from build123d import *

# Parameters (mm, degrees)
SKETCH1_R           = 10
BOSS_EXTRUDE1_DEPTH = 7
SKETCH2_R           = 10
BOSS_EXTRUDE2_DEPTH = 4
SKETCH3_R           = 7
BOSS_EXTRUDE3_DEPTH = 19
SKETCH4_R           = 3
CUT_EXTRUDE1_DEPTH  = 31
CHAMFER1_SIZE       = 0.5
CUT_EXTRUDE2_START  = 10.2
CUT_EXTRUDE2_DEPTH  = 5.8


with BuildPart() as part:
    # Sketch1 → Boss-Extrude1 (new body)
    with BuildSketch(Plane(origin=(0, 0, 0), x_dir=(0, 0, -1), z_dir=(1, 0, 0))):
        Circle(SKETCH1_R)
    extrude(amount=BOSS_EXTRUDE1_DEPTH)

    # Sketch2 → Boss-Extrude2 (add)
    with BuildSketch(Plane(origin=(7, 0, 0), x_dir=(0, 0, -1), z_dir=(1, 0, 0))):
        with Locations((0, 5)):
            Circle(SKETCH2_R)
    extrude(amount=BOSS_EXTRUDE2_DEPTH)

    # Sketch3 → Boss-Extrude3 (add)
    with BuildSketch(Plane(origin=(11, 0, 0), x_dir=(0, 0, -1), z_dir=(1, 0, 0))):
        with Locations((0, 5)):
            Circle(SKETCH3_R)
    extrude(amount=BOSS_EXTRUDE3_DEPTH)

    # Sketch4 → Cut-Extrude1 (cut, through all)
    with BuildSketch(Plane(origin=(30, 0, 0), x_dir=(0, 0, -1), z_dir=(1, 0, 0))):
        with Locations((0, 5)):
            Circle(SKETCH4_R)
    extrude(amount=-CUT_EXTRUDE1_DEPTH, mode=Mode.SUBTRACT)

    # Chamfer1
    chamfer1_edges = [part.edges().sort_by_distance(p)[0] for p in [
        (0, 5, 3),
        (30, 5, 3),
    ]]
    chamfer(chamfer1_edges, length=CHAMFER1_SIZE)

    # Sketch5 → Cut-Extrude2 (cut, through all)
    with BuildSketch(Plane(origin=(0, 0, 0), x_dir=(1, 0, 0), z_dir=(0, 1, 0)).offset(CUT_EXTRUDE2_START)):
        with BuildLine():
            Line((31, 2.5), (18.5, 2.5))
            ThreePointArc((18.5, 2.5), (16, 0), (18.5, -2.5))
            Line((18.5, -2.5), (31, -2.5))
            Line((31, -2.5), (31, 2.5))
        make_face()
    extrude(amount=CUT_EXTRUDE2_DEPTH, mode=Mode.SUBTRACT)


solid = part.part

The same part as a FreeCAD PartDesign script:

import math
import FreeCAD as App
import Part
import Sketcher
Q = App.Units.Quantity


def edges_at(feature, points):
    """Names of the edges that pass closest to the given points."""
    edges = feature.Shape.Edges
    near = lambda p: min(range(len(edges)), key=lambda i: edges[i].distToShape(Part.Vertex(*p))[0])
    return sorted({f"Edge{near(p) + 1}" for p in points})

doc = App.newDocument("Part")
params = doc.addObject("Spreadsheet::Sheet", "Params")
for row, (alias, value) in enumerate([
    ("sketch1_diameter", "20 mm"),
    ("pad1_length", "7 mm"),
    ("sketch2_diameter", "20 mm"),
    ("pad2_length", "4 mm"),
    ("sketch3_diameter", "14 mm"),
    ("pad3_length", "19 mm"),
    ("sketch4_diameter", "6 mm"),
    ("chamfer_size", "0.5 mm"),
    ("sketch5_radius", "2.5 mm"),
    ("sketch5_width", "12.5 mm"),
], start=1):
    params.set(f"A{row}", alias)
    params.set(f"B{row}", "=" + value)
    params.setAlias(f"B{row}", alias)

body = doc.addObject("PartDesign::Body", "Body")

# Sketch on YZ plane
sketch1 = body.newObject("Sketcher::SketchObject", "Sketch")
sketch1.AttachmentSupport = (doc.getObject("YZ_Plane"), [""])
sketch1.MapMode = "FlatFace"
sketch1.addGeometry(Part.Circle(App.Vector(0, 0, 0), App.Vector(0, 0, 1), 10), False)
sketch1.addConstraint(Sketcher.Constraint("Coincident", 0, 3, -1, 1))
sketch1.addConstraint(Sketcher.Constraint("Diameter", 0, Q("20 mm")))
sketch1.setExpression("Constraints[1]", "Params.sketch1_diameter")
pad1 = body.newObject("PartDesign::Pad", "Pad")
pad1.Profile = sketch1
pad1.setExpression("Length", "Params.pad1_length")

# Sketch on YZ plane
sketch2 = body.newObject("Sketcher::SketchObject", "Sketch001")
sketch2.AttachmentSupport = (doc.getObject("YZ_Plane"), [""])
sketch2.MapMode = "FlatFace"
sketch2.AttachmentOffset = App.Placement(App.Vector(0, 0, 7), App.Rotation())
sketch2.addGeometry(Part.Circle(App.Vector(5, 0, 0), App.Vector(0, 0, 1), 10), False)
sketch2.addConstraint(Sketcher.Constraint("PointOnObject", 0, 3, -1))
sketch2.addConstraint(Sketcher.Constraint("Diameter", 0, Q("20 mm")))
sketch2.addConstraint(Sketcher.Constraint("DistanceX", -1, 1, 0, 3, Q("5 mm")))
sketch2.setExpression("Constraints[1]", "Params.sketch2_diameter")
pad2 = body.newObject("PartDesign::Pad", "Pad001")
pad2.Profile = sketch2
pad2.setExpression("Length", "Params.pad2_length")

# Sketch on YZ plane
sketch3 = body.newObject("Sketcher::SketchObject", "Sketch002")
sketch3.AttachmentSupport = (doc.getObject("YZ_Plane"), [""])
sketch3.MapMode = "FlatFace"
sketch3.AttachmentOffset = App.Placement(App.Vector(0, 0, 11), App.Rotation())
sketch3.addGeometry(Part.Circle(App.Vector(5, 0, 0), App.Vector(0, 0, 1), 7), False)
sketch3.addConstraint(Sketcher.Constraint("PointOnObject", 0, 3, -1))
sketch3.addConstraint(Sketcher.Constraint("Diameter", 0, Q("14 mm")))
sketch3.addConstraint(Sketcher.Constraint("DistanceX", -1, 1, 0, 3, Q("5 mm")))
sketch3.setExpression("Constraints[1]", "Params.sketch3_diameter")
pad3 = body.newObject("PartDesign::Pad", "Pad002")
pad3.Profile = sketch3
pad3.setExpression("Length", "Params.pad3_length")

# Sketch on YZ plane
sketch4 = body.newObject("Sketcher::SketchObject", "Sketch003")
sketch4.AttachmentSupport = (doc.getObject("YZ_Plane"), [""])
sketch4.MapMode = "FlatFace"
sketch4.AttachmentOffset = App.Placement(App.Vector(0, 0, 30), App.Rotation())
sketch4.addGeometry(Part.Circle(App.Vector(5, 0, 0), App.Vector(0, 0, 1), 3), False)
sketch4.addConstraint(Sketcher.Constraint("PointOnObject", 0, 3, -1))
sketch4.addConstraint(Sketcher.Constraint("Diameter", 0, Q("6 mm")))
sketch4.addConstraint(Sketcher.Constraint("DistanceX", -1, 1, 0, 3, Q("5 mm")))
sketch4.setExpression("Constraints[1]", "Params.sketch4_diameter")
pocket1 = body.newObject("PartDesign::Pocket", "Pocket")
pocket1.Profile = sketch4
pocket1.Type = "ThroughAll"
doc.recompute()

chamfer = body.newObject("PartDesign::Chamfer", "Chamfer")
chamfer.Base = (pocket1, edges_at(pocket1, [(0, 5, 3), (30, 5, 3)]))
chamfer.setExpression("Size", "Params.chamfer_size")

# Sketch on XZ plane
sketch5 = body.newObject("Sketcher::SketchObject", "Sketch004")
sketch5.AttachmentSupport = (doc.getObject("XZ_Plane"), [""])
sketch5.MapMode = "FlatFace"
sketch5.AttachmentOffset = App.Placement(App.Vector(0, 0, -10.2), App.Rotation())
sketch5.addGeometry(Part.LineSegment(App.Vector(31, -2.5, 0), App.Vector(18.5, -2.5, 0)), False)
sketch5.addGeometry(Part.ArcOfCircle(Part.Circle(App.Vector(18.5, 0, 0), App.Vector(0, 0, 1), 2.5), math.radians(90), math.radians(270)), False)
sketch5.addGeometry(Part.LineSegment(App.Vector(18.5, 2.5, 0), App.Vector(31, 2.5, 0)), False)
sketch5.addGeometry(Part.LineSegment(App.Vector(31, 2.5, 0), App.Vector(31, -2.5, 0)), False)
sketch5.addConstraint(Sketcher.Constraint("Tangent", 0, 2, 1, 2))
sketch5.addConstraint(Sketcher.Constraint("Tangent", 1, 1, 2, 1))
sketch5.addConstraint(Sketcher.Constraint("Coincident", 2, 2, 3, 1))
sketch5.addConstraint(Sketcher.Constraint("Coincident", 3, 2, 0, 1))
sketch5.addConstraint(Sketcher.Constraint("Horizontal", 0))
sketch5.addConstraint(Sketcher.Constraint("Horizontal", 2))
sketch5.addConstraint(Sketcher.Constraint("Vertical", 3))
sketch5.addConstraint(Sketcher.Constraint("PointOnObject", 1, 3, -1))
sketch5.addConstraint(Sketcher.Constraint("Radius", 1, Q("2.5 mm")))
sketch5.addConstraint(Sketcher.Constraint("DistanceX", 0, 2, 0, 1, Q("12.5 mm")))
sketch5.addConstraint(Sketcher.Constraint("DistanceX", -1, 1, 2, 2, Q("31 mm")))
sketch5.setExpression("Constraints[8]", "Params.sketch5_radius")
sketch5.setExpression("Constraints[9]", "Params.sketch5_width")
pocket2 = body.newObject("PartDesign::Pocket", "Pocket001")
pocket2.Profile = sketch5
pocket2.Type = "ThroughAll"

doc.recompute()
